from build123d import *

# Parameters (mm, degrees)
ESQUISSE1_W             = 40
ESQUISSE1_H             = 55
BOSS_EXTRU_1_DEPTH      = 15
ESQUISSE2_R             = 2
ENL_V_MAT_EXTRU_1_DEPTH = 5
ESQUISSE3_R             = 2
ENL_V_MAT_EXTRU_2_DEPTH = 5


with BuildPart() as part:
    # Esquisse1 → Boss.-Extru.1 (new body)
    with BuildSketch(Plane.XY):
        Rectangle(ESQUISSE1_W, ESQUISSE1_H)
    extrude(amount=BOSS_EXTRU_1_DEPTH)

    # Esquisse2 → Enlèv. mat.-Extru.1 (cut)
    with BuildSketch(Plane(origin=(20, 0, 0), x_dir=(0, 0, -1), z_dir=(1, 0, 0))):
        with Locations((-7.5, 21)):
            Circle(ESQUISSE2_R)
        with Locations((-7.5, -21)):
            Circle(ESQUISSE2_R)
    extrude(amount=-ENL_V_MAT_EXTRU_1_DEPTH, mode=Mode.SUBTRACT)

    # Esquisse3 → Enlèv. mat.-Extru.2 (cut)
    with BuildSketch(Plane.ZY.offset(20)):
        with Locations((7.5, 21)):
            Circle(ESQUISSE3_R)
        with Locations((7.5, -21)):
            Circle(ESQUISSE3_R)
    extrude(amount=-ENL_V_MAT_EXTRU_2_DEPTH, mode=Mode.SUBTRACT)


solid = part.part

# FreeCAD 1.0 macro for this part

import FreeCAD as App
import Part
import Sketcher

V = App.Vector


def add_polygon(sketch, points):
    """Adds a closed chain of lines whose ends are joined by coincident constraints."""
    first, n = sketch.GeometryCount, len(points)
    for a, b in zip(points, points[1:] + points[:1]):
        sketch.addGeometry(Part.LineSegment(App.Vector(*a, 0), App.Vector(*b, 0)), False)
    for i in range(n):
        sketch.addConstraint(Sketcher.Constraint("Coincident", first + i, 2, first + (i + 1) % n, 1))

doc = App.newDocument("Part")
params = doc.addObject("Spreadsheet::Sheet", "Params")
for row, (alias, value) in enumerate([
    ("sketch1_width", "40 mm"),
    ("sketch1_height", "55 mm"),
    ("pad1_length", "15 mm"),
    ("sketch2_diameter", "4 mm"),
    ("pocket1_length", "5 mm"),
    ("sketch3_diameter", "4 mm"),
    ("pocket2_length", "5 mm"),
], start=1):
    params.set(f"A{row}", alias)
    params.set(f"B{row}", "=" + value)
    params.setAlias(f"B{row}", alias)

body = doc.addObject("PartDesign::Body", "Body")

# Sketch on XY plane
sketch1 = doc.addObject("Sketcher::SketchObject", "Sketch")
body.addObject(sketch1)
sketch1.AttachmentSupport = (doc.XY_Plane, [""])
sketch1.MapMode = "FlatFace"
add_polygon(sketch1, [(-20, 28), (-20, -28), (20, -28), (20, 28)])  # lines 0-3
sketch1.addConstraint(Sketcher.Constraint("Vertical", 0))
sketch1.addConstraint(Sketcher.Constraint("Horizontal", 1))
sketch1.addConstraint(Sketcher.Constraint("Vertical", 2))
sketch1.addConstraint(Sketcher.Constraint("Horizontal", 3))
sketch1.addConstraint(Sketcher.Constraint("Symmetric", 0, 2, 2, 2, -1, 1))
sketch1.addConstraint(Sketcher.Constraint("DistanceX", 1, 1, 1, 2, 40.0))
sketch1.addConstraint(Sketcher.Constraint("DistanceY", 0, 2, 0, 1, 55.0))
sketch1.setExpression("Constraints[9]", "Params.sketch1_width")
sketch1.setExpression("Constraints[10]", "Params.sketch1_height")
pad1 = doc.addObject("PartDesign::Pad", "Pad")
body.addObject(pad1)
pad1.Profile = sketch1
pad1.setExpression("Length", "Params.pad1_length")

# Sketch on YZ plane
sketch2 = doc.addObject("Sketcher::SketchObject", "Sketch001")
body.addObject(sketch2)
sketch2.AttachmentSupport = (doc.YZ_Plane, [""])
sketch2.MapMode = "FlatFace"
sketch2.AttachmentOffset = App.Placement(V(0, 0, 20), App.Rotation())
sketch2.addGeometry(Part.Circle(V(21, 7.5, 0), V(0, 0, 1), 2), False)
sketch2.addGeometry(Part.Circle(V(-21, 7.5, 0), V(0, 0, 1), 2), False)
sketch2.addConstraint(Sketcher.Constraint("Equal", 0, 1))
sketch2.addConstraint(Sketcher.Constraint("Symmetric", 0, 3, 1, 3, -2))
sketch2.addConstraint(Sketcher.Constraint("Diameter", 0, 4.0))
sketch2.addConstraint(Sketcher.Constraint("DistanceX", -1, 1, 0, 3, 21.0))
sketch2.addConstraint(Sketcher.Constraint("DistanceY", -1, 1, 0, 3, 7.5))
sketch2.setExpression("Constraints[2]", "Params.sketch2_diameter")
pocket1 = doc.addObject("PartDesign::Pocket", "Pocket")
body.addObject(pocket1)
pocket1.Profile = sketch2
pocket1.setExpression("Length", "Params.pocket1_length")

# Sketch on YZ plane
sketch3 = doc.addObject("Sketcher::SketchObject", "Sketch002")
body.addObject(sketch3)
sketch3.AttachmentSupport = (doc.YZ_Plane, [""])
sketch3.MapMode = "FlatFace"
sketch3.AttachmentOffset = App.Placement(V(0, 0, -20), App.Rotation())
sketch3.addGeometry(Part.Circle(V(21, 7.5, 0), V(0, 0, 1), 2), False)
sketch3.addGeometry(Part.Circle(V(-21, 7.5, 0), V(0, 0, 1), 2), False)
sketch3.addConstraint(Sketcher.Constraint("Equal", 0, 1))
sketch3.addConstraint(Sketcher.Constraint("Symmetric", 0, 3, 1, 3, -2))
sketch3.addConstraint(Sketcher.Constraint("Diameter", 0, 4.0))
sketch3.addConstraint(Sketcher.Constraint("DistanceX", -1, 1, 0, 3, 21.0))
sketch3.addConstraint(Sketcher.Constraint("DistanceY", -1, 1, 0, 3, 7.5))
sketch3.setExpression("Constraints[2]", "Params.sketch3_diameter")
pocket2 = doc.addObject("PartDesign::Pocket", "Pocket001")
body.addObject(pocket2)
pocket2.Profile = sketch3
pocket2.setExpression("Length", "Params.pocket2_length")
pocket2.Reversed = True

doc.recompute()
